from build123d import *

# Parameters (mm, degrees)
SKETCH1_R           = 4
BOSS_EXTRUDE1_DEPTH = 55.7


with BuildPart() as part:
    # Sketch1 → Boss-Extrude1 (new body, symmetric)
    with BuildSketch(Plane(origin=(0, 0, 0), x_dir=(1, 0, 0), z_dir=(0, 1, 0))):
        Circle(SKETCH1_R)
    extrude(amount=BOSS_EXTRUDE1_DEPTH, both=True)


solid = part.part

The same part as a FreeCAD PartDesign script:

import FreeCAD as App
import Part
import Sketcher

V = App.Vector

doc = App.newDocument("Part")
body = doc.addObject("PartDesign::Body", "Body")

sketch1 = doc.addObject("Sketcher::SketchObject", "Sketch")
body.addObject(sketch1)
sketch1.AttachmentSupport = (doc.XZ_Plane, [""])
sketch1.MapMode = "FlatFace"
sketch1.addGeometry(Part.Circle(V(0, 0, 0), V(0, 0, 1), 4), False)
sketch1.addConstraint([
    Sketcher.Constraint("Coincident", 0, 3, -1, 1),
    Sketcher.Constraint("Diameter", 0, 8.0),
])
pad1 = doc.addObject("PartDesign::Pad", "Pad")
body.addObject(pad1)
pad1.Profile = sketch1
pad1.Length = 111.4
pad1.Midplane = True

doc.recompute()
